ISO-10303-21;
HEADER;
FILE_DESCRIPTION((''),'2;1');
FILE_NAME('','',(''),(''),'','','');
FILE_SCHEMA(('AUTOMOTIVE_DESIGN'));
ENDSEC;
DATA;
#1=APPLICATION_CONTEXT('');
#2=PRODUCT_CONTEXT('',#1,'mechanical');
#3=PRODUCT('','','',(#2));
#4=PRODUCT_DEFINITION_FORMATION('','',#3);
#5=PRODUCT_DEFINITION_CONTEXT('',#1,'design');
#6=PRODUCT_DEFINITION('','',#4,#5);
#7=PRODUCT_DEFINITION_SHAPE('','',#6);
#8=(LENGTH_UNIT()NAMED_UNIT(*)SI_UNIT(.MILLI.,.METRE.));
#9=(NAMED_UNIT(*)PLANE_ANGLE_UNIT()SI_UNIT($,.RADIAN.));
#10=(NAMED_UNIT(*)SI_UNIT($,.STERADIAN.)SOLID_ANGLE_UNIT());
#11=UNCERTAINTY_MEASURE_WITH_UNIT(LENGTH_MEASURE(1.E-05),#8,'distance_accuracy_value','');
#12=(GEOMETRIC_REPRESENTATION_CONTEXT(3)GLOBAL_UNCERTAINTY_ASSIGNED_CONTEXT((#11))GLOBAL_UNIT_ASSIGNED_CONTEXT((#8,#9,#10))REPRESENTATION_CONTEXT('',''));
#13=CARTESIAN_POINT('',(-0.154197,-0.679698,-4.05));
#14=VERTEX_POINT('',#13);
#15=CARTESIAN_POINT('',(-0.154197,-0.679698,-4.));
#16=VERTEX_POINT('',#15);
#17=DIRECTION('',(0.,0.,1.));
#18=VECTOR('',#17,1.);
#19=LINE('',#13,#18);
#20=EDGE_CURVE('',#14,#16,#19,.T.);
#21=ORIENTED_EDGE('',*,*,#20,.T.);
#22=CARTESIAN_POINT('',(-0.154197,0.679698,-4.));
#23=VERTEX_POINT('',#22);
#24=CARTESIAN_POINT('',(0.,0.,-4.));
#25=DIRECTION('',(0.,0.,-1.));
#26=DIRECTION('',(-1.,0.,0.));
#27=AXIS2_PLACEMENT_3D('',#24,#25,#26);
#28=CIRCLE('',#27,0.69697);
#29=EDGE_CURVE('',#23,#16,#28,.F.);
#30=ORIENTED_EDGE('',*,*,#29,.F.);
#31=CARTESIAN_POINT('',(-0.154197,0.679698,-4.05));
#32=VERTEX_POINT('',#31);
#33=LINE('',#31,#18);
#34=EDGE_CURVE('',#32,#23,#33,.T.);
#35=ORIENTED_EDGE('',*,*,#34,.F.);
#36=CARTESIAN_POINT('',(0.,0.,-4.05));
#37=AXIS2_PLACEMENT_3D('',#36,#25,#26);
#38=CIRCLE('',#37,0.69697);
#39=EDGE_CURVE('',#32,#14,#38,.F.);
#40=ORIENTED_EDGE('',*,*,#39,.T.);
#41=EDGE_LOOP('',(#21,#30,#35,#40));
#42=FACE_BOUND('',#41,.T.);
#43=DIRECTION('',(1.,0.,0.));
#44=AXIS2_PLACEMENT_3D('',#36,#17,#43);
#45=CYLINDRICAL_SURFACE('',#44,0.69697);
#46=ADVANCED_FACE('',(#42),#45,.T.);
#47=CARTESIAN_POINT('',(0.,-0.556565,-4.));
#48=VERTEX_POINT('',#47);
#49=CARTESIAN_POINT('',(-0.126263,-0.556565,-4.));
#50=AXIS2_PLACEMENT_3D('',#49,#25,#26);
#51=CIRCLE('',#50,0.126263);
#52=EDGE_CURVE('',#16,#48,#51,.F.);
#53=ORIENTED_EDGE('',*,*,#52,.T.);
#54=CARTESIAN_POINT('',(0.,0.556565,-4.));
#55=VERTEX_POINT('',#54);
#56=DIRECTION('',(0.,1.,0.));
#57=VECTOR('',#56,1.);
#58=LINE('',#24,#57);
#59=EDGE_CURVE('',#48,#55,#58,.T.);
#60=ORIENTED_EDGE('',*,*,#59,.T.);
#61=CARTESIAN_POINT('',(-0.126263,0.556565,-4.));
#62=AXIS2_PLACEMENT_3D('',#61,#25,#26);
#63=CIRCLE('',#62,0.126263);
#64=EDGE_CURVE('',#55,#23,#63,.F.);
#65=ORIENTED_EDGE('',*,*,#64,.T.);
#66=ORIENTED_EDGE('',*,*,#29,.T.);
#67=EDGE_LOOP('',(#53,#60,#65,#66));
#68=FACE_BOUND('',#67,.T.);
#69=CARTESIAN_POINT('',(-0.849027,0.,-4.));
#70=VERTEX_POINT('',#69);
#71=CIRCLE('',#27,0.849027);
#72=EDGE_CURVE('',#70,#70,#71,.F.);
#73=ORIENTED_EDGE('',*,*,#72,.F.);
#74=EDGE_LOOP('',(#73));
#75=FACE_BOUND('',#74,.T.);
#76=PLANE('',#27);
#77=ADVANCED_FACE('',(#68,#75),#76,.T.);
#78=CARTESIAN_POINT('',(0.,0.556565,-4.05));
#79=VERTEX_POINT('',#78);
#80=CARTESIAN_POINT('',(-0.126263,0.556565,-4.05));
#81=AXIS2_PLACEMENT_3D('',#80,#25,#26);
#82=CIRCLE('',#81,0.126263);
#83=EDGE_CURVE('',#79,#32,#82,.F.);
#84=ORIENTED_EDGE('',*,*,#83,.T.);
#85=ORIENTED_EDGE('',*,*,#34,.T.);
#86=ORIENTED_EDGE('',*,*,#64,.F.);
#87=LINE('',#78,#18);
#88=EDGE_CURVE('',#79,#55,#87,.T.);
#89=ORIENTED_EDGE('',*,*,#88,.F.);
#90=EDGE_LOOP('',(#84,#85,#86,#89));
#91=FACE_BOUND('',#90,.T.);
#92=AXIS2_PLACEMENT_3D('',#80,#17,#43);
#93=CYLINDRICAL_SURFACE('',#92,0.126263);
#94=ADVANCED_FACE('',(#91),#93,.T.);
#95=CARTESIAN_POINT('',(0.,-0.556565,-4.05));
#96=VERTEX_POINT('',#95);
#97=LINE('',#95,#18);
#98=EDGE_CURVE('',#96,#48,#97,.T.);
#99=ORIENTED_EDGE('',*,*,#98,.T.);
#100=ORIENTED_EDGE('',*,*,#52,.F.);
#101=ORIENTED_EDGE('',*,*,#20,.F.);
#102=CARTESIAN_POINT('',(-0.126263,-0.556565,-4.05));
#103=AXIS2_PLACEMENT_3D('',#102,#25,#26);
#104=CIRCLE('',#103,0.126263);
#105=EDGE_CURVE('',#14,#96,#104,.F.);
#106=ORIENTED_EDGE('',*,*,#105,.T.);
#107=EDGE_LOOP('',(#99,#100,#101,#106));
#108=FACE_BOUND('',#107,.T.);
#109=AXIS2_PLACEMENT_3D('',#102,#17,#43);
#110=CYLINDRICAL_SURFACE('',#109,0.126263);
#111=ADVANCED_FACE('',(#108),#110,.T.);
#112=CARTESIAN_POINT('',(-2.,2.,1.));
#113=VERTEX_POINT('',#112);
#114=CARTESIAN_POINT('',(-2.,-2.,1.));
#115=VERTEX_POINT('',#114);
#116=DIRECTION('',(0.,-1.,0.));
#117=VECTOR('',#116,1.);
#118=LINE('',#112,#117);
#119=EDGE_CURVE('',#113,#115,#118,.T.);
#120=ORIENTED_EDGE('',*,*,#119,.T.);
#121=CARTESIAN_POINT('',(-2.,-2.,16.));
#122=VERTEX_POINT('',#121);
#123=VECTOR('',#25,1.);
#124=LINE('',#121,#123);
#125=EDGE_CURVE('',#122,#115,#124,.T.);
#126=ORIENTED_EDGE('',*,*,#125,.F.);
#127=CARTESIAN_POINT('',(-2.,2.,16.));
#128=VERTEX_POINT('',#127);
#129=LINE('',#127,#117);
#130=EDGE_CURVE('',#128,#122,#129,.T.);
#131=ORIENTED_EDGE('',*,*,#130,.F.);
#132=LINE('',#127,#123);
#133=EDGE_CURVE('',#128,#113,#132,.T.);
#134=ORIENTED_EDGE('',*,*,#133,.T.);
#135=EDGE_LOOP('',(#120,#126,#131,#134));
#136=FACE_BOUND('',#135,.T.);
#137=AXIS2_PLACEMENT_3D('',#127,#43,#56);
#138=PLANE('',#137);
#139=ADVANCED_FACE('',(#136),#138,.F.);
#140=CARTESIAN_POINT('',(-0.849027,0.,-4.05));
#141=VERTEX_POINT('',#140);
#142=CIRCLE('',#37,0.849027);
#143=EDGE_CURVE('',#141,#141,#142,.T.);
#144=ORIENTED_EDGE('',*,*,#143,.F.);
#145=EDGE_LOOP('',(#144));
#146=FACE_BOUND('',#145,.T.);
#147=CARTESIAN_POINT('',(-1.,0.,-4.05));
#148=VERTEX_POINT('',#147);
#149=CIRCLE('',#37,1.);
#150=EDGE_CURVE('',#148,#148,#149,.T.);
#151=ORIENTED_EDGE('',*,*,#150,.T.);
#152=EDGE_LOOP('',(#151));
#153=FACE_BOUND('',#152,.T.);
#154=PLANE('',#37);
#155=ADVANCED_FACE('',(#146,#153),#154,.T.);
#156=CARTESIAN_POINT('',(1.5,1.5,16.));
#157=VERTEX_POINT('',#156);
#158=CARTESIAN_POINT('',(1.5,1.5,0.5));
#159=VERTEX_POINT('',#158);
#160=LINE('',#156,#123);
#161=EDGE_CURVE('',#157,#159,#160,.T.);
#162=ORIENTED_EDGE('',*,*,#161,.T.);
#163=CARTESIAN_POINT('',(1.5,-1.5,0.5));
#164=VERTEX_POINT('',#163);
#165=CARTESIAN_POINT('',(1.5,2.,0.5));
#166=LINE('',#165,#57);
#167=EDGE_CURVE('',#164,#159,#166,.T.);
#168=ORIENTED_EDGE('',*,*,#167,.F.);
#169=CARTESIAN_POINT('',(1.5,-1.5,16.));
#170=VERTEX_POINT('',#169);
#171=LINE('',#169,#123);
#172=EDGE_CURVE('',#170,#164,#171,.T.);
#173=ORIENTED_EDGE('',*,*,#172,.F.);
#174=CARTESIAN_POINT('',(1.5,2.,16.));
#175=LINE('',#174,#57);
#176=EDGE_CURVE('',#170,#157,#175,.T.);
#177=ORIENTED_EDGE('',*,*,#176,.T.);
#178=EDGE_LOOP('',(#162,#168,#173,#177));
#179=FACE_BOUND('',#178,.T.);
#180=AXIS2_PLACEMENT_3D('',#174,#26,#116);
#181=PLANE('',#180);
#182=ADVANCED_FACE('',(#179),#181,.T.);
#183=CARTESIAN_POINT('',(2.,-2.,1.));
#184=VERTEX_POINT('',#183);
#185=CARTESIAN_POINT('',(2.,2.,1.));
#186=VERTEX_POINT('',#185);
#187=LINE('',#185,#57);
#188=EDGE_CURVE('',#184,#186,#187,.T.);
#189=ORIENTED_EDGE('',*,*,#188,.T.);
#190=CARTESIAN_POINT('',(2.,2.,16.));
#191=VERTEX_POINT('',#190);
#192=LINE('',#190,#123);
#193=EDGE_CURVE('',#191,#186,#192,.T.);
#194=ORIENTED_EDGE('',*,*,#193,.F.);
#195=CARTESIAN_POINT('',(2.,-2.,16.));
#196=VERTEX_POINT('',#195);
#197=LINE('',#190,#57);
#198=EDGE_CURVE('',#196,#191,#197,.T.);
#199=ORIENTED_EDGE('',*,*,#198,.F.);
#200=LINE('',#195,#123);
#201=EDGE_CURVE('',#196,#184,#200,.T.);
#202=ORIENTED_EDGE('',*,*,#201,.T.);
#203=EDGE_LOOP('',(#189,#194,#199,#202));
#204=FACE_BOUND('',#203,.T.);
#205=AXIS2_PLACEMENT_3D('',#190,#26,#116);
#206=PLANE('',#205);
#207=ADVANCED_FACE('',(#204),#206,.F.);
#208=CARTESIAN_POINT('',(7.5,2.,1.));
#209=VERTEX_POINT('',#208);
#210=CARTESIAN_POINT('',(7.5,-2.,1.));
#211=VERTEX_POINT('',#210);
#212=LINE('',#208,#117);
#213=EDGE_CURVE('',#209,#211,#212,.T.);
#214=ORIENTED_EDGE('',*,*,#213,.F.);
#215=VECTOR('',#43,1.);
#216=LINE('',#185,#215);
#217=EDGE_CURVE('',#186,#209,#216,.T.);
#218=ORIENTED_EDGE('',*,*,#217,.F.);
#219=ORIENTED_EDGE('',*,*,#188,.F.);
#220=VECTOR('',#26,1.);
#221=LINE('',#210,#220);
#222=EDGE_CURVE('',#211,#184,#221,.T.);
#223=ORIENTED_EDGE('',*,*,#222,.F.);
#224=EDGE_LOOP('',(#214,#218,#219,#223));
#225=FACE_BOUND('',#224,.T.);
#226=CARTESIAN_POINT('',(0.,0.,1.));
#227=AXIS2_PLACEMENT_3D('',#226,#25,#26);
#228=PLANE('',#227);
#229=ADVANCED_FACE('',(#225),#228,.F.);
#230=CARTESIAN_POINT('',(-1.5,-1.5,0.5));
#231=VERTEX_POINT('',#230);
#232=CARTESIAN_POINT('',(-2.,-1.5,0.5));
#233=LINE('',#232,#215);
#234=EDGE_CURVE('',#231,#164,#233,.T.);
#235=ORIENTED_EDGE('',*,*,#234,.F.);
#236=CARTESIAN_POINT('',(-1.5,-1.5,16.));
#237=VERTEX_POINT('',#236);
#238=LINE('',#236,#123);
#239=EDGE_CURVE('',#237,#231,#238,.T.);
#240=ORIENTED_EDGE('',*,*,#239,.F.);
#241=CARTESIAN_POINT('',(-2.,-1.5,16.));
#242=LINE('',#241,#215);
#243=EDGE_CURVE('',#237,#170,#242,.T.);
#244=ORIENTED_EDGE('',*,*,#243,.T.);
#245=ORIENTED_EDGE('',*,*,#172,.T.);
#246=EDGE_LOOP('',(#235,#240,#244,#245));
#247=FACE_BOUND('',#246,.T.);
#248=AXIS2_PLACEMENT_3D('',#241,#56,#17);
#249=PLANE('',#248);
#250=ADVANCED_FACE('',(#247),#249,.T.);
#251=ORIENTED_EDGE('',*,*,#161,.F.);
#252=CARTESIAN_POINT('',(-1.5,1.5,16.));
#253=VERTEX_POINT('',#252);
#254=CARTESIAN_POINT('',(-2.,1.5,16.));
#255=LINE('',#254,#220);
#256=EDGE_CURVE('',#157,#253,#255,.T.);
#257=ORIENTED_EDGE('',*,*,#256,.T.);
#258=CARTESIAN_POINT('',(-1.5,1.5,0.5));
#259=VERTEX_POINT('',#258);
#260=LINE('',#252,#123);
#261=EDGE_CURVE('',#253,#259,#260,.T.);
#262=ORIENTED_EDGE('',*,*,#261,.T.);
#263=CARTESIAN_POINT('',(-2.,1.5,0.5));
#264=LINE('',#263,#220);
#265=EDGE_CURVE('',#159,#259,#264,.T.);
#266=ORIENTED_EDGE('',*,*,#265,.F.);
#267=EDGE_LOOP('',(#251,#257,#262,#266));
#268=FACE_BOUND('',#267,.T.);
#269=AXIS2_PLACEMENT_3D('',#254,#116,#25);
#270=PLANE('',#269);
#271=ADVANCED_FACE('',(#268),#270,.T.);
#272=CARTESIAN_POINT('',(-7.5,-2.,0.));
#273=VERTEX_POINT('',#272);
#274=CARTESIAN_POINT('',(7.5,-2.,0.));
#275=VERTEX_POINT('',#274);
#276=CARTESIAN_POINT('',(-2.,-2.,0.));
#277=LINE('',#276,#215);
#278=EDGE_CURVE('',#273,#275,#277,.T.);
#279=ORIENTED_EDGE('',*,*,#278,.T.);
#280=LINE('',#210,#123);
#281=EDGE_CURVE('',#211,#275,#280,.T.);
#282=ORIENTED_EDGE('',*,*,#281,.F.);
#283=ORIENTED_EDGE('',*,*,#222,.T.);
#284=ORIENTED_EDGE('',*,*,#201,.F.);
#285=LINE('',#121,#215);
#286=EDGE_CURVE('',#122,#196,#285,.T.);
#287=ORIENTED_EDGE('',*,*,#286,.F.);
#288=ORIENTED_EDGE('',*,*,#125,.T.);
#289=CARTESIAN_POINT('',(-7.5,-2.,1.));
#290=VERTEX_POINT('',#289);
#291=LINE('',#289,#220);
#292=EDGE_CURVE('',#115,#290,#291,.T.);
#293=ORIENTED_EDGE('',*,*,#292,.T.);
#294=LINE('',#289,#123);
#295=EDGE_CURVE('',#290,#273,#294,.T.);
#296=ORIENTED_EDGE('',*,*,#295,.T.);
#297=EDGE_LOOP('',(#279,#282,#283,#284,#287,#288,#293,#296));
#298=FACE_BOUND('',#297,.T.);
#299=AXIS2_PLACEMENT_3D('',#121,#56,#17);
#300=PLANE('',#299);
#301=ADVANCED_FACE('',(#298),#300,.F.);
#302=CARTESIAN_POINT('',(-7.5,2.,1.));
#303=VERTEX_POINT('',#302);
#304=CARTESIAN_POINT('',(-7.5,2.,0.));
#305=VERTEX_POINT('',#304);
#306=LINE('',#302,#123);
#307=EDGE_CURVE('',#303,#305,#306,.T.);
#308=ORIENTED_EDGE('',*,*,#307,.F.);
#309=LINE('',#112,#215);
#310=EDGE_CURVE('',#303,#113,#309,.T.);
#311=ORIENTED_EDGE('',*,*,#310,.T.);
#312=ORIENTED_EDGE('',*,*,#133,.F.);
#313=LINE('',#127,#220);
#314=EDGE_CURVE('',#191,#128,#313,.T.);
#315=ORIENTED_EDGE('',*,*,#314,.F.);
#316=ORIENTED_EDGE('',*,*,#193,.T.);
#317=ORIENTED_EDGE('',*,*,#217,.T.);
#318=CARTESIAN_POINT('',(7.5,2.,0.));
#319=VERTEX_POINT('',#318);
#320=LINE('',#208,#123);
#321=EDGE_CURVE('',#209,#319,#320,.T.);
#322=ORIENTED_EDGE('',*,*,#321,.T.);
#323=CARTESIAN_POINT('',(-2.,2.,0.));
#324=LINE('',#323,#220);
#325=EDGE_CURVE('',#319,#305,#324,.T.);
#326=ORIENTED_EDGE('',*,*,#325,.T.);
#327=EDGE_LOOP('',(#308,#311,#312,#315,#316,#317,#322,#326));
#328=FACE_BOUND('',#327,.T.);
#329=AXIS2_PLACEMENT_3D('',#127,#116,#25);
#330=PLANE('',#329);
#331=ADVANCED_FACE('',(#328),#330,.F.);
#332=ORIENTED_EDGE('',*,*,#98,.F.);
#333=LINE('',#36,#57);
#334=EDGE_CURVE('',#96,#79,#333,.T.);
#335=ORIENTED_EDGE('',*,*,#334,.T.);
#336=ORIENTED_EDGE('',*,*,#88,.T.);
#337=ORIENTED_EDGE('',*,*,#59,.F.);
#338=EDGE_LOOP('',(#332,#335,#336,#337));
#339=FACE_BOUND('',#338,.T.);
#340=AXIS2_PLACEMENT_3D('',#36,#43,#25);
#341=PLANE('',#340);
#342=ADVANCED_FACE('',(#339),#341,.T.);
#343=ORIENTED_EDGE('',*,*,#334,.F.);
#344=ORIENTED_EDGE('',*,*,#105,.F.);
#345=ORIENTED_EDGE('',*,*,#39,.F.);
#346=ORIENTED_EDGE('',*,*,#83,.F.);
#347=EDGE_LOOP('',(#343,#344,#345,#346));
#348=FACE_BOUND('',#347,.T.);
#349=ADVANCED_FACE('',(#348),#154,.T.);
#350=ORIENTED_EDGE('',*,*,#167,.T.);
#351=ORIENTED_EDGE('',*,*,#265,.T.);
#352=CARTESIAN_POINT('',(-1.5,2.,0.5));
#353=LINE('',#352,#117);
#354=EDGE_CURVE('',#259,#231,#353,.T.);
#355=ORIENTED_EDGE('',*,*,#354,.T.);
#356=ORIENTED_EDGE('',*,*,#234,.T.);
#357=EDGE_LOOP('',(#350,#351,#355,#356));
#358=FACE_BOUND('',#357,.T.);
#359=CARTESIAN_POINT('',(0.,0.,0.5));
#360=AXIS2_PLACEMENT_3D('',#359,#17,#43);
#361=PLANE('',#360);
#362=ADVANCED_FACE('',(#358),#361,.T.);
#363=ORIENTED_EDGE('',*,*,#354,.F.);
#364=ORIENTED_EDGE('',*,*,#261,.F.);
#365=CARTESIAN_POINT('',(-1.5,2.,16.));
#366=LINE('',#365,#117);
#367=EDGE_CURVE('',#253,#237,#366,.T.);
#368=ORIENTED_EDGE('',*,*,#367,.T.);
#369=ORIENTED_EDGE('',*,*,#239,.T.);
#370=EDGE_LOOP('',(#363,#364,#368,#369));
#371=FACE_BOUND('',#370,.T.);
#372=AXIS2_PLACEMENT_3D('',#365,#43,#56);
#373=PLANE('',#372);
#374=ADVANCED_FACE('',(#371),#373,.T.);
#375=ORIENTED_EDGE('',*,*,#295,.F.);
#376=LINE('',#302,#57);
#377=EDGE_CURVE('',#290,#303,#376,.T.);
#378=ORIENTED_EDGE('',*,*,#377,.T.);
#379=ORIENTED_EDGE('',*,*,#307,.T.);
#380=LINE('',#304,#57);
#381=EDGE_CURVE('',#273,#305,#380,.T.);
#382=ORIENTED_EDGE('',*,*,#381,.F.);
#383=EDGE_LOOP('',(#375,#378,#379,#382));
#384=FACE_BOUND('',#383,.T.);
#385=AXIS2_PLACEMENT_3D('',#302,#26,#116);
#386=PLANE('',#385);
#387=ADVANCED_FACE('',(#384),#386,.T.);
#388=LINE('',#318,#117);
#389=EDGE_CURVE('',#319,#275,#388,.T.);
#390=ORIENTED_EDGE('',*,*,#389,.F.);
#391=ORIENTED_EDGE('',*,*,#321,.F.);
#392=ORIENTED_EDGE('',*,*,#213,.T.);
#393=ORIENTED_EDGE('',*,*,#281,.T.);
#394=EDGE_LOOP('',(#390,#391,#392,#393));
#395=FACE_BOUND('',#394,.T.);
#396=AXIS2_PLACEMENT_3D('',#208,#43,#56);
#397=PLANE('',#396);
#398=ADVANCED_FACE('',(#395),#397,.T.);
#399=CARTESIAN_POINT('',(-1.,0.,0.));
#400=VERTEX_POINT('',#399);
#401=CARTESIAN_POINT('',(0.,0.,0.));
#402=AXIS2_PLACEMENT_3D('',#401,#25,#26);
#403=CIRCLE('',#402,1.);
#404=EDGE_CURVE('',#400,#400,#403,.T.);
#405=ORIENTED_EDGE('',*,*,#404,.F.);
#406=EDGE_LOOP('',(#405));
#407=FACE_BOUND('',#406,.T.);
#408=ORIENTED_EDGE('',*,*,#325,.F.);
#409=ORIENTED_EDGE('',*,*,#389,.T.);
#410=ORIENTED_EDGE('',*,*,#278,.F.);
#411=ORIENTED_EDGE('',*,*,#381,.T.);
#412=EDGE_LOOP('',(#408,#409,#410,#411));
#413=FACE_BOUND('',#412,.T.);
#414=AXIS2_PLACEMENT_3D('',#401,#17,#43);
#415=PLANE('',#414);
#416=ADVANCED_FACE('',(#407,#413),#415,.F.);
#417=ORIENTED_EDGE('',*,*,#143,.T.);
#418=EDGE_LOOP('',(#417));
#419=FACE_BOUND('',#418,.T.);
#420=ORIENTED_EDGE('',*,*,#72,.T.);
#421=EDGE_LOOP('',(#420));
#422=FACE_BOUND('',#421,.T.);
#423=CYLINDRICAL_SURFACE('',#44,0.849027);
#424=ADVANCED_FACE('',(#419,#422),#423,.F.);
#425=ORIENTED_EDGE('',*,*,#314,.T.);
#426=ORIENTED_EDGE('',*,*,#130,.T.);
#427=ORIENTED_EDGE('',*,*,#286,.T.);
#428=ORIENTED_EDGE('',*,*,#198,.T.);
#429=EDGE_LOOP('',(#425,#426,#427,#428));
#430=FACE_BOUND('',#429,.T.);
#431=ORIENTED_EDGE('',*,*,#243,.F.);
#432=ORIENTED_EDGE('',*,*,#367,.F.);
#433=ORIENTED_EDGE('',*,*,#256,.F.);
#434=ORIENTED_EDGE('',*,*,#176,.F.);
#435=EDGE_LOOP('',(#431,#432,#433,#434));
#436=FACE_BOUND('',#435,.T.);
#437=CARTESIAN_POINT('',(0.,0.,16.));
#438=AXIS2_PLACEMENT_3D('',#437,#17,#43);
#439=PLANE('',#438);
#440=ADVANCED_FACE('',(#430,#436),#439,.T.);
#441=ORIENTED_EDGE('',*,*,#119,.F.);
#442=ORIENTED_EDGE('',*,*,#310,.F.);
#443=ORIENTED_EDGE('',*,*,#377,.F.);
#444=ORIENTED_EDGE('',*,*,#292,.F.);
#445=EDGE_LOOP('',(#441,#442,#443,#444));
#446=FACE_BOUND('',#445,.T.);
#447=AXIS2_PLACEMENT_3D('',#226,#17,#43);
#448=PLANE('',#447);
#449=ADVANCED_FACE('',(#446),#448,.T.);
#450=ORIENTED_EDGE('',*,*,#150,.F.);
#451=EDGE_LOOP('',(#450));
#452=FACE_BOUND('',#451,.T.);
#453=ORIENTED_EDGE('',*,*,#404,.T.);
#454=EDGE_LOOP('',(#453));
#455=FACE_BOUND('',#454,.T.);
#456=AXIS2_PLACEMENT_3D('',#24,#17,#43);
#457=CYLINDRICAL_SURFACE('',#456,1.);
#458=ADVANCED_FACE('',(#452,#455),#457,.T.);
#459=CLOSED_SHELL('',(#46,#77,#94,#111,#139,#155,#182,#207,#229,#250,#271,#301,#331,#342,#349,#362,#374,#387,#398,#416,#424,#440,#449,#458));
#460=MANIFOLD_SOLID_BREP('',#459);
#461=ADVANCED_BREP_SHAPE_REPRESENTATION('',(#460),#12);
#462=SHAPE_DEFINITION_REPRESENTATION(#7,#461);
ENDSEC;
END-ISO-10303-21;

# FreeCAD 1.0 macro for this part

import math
import FreeCAD as App
import Part
import Sketcher

V = App.Vector


def faces_at(feature, points):
    """Names of the faces that lie closest to the given points."""
    faces = feature.Shape.Faces
    near = lambda p: min(range(len(faces)), key=lambda i: faces[i].distToShape(Part.Vertex(*p))[0])
    return sorted({f"Face{near(p) + 1}" for p in points})


def add_polygon(sketch, points):
    """Adds a closed chain of lines whose ends are joined by coincident constraints."""
    first, n = sketch.GeometryCount, len(points)
    for a, b in zip(points, points[1:] + points[:1]):
        sketch.addGeometry(Part.LineSegment(App.Vector(*a, 0), App.Vector(*b, 0)), False)
    for i in range(n):
        sketch.addConstraint(Sketcher.Constraint("Coincident", first + i, 2, first + (i + 1) % n, 1))

doc = App.newDocument("Part")
body = doc.addObject("PartDesign::Body", "Body")

sketch1 = body.newObject("Sketcher::SketchObject", "Sketch")
sketch1.AttachmentSupport = (doc.getObject("XY_Plane"), [""])
sketch1.MapMode = "FlatFace"
add_polygon(sketch1, [(-2, 2), (-2, -2), (2, -2), (2, 2)])
sketch1.addConstraint(Sketcher.Constraint("Vertical", 0))
sketch1.addConstraint(Sketcher.Constraint("Horizontal", 1))
sketch1.addConstraint(Sketcher.Constraint("Vertical", 2))
sketch1.addConstraint(Sketcher.Constraint("Horizontal", 3))
sketch1.addConstraint(Sketcher.Constraint("Symmetric", 0, 2, 2, 2, -1, 1))
sketch1.addConstraint(Sketcher.Constraint("Equal", 3, 0))
sketch1.addConstraint(Sketcher.Constraint("DistanceX", 1, 1, 1, 2, 4.0))
pad1 = body.newObject("PartDesign::Pad", "Pad")
pad1.Profile = sketch1
pad1.Length = 16
doc.recompute()

thickness = body.newObject("PartDesign::Thickness", "Thickness")
thickness.Base = (pad1, faces_at(pad1, [(0, 0, 16)]))
thickness.Value = 0.5
thickness.Reversed = True
thickness.Join = "Intersection"

sketch2 = body.newObject("Sketcher::SketchObject", "Sketch001")
sketch2.AttachmentSupport = (doc.getObject("XY_Plane"), [""])
sketch2.MapMode = "FlatFace"
sketch2.addGeometry(Part.Circle(V(0, 0, 0), V(0, 0, 1), 1), False)
sketch2.addConstraint(Sketcher.Constraint("Coincident", 0, 3, -1, 1))
sketch2.addConstraint(Sketcher.Constraint("Diameter", 0, 2.0))
pad2 = body.newObject("PartDesign::Pad", "Pad001")
pad2.Profile = sketch2
pad2.Length = 4
pad2.Reversed = True

sketch3 = body.newObject("Sketcher::SketchObject", "Sketch002")
sketch3.AttachmentSupport = (doc.getObject("XY_Plane"), [""])
sketch3.MapMode = "FlatFace"
sketch3.AttachmentOffset = App.Placement(V(0, 0, -4), App.Rotation())
sketch3.addGeometry(Part.Circle(V(0, 0, 0), V(0, 0, 1), 1), False)
sketch3.addGeometry(Part.Circle(V(0, 0, 0), V(0, 0, 1), 0.849027), False)
sketch3.addGeometry(Part.ArcOfCircle(Part.Circle(V(-0.126263, 0.556565, 0), V(0, 0, 1), 0.126263), math.radians(0), math.radians(102.781814)), False)
sketch3.addGeometry(Part.LineSegment(V(0, 0.556565, 0), V(0, -0.556565, 0)), False)
sketch3.addGeometry(Part.ArcOfCircle(Part.Circle(V(-0.126263, -0.556565, 0), V(0, 0, 1), 0.126263), math.radians(-102.781814), math.radians(0)), False)
sketch3.addGeometry(Part.ArcOfCircle(Part.Circle(V(0, 0, 0), V(0, 0, 1), 0.69697), math.radians(102.781814), math.radians(257.218186)), False)
sketch3.addConstraint(Sketcher.Constraint("Tangent", 2, 1, 3, 1))
sketch3.addConstraint(Sketcher.Constraint("Tangent", 3, 2, 4, 2))
sketch3.addConstraint(Sketcher.Constraint("Tangent", 4, 1, 5, 2))
sketch3.addConstraint(Sketcher.Constraint("Tangent", 5, 1, 2, 2))
sketch3.addConstraint(Sketcher.Constraint("Vertical", 3))
sketch3.addConstraint(Sketcher.Constraint("Coincident", 0, 3, -1, 1))
sketch3.addConstraint(Sketcher.Constraint("Coincident", 1, 3, -1, 1))
sketch3.addConstraint(Sketcher.Constraint("Coincident", 5, 3, -1, 1))
sketch3.addConstraint(Sketcher.Constraint("Equal", 2, 4))
sketch3.addConstraint(Sketcher.Constraint("PointOnObject", 2, 1, -2))
sketch3.addConstraint(Sketcher.Constraint("Diameter", 0, 2.0))
sketch3.addConstraint(Sketcher.Constraint("Radius", 5, 0.69697))
sketch3.addConstraint(Sketcher.Constraint("Diameter", 1, 1.698053))
sketch3.addConstraint(Sketcher.Constraint("Radius", 2, 0.126263))
pad3 = body.newObject("PartDesign::Pad", "Pad002")
pad3.Profile = sketch3
pad3.Length = 0.05
pad3.Reversed = True

sketch4 = body.newObject("Sketcher::SketchObject", "Sketch003")
sketch4.AttachmentSupport = (doc.getObject("XY_Plane"), [""])
sketch4.MapMode = "FlatFace"
add_polygon(sketch4, [(7.5, 2), (7.5, -2), (2, -2), (2, 2)])
add_polygon(sketch4, [(-2, 2), (-2, -2), (-7.5, -2), (-7.5, 2)])
sketch4.addConstraint(Sketcher.Constraint("Vertical", 0))
sketch4.addConstraint(Sketcher.Constraint("Horizontal", 1))
sketch4.addConstraint(Sketcher.Constraint("Vertical", 2))
sketch4.addConstraint(Sketcher.Constraint("Horizontal", 3))
sketch4.addConstraint(Sketcher.Constraint("Vertical", 4))
sketch4.addConstraint(Sketcher.Constraint("Horizontal", 5))
sketch4.addConstraint(Sketcher.Constraint("Vertical", 6))
sketch4.addConstraint(Sketcher.Constraint("Horizontal", 7))
sketch4.addConstraint(Sketcher.Constraint("Symmetric", 2, 2, 4, 2, -1, 1))
sketch4.addConstraint(Sketcher.Constraint("Symmetric", 0, 2, 6, 2, -1, 1))
sketch4.addConstraint(Sketcher.Constraint("Horizontal", 1, 2, 4, 2))
sketch4.addConstraint(Sketcher.Constraint("DistanceY", 0, 2, 0, 1, 4.0))
sketch4.addConstraint(Sketcher.Constraint("DistanceX", 1, 2, 1, 1, 5.5))
sketch4.addConstraint(Sketcher.Constraint("DistanceX", -1, 1, 1, 2, 2.0))
pad4 = body.newObject("PartDesign::Pad", "Pad003")
pad4.Profile = sketch4
pad4.Length = 1

doc.recompute()
